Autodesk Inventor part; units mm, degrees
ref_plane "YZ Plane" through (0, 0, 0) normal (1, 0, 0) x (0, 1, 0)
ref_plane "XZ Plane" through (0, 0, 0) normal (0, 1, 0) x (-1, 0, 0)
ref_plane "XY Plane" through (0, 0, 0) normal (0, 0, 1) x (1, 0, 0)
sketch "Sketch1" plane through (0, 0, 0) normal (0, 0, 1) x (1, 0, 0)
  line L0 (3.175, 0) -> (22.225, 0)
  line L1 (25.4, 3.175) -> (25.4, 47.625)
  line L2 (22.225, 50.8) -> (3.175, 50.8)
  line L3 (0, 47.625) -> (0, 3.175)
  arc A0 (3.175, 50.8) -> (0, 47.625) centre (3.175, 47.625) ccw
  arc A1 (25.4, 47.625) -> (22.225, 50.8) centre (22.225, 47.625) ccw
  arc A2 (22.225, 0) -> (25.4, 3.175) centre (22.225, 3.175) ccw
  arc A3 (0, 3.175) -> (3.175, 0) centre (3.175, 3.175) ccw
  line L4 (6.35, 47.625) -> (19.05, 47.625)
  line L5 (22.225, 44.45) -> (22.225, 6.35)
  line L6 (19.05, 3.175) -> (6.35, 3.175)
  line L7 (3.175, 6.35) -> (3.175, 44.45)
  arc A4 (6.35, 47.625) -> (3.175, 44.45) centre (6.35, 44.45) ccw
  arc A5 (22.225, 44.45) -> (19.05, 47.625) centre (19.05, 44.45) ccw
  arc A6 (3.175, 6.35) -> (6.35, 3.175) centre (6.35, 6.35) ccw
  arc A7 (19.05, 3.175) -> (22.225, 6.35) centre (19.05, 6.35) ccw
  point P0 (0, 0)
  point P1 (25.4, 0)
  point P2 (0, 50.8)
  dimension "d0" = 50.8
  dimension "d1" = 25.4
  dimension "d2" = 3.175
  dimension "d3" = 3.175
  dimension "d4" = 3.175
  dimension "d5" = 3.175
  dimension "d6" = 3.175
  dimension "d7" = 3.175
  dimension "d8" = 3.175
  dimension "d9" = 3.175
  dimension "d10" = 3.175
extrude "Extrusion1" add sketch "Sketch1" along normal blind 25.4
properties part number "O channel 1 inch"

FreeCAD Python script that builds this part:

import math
import FreeCAD as App
import Part
import Sketcher

V = App.Vector
Q = App.Units.Quantity

doc = App.newDocument("Part")
body = doc.addObject("PartDesign::Body", "Body")

# Sketch on XY plane
sketch1 = body.newObject("Sketcher::SketchObject", "Sketch")
sketch1.AttachmentSupport = (doc.getObject("XY_Plane"), [""])
sketch1.MapMode = "FlatFace"
sketch1.addGeometry([
    Part.ArcOfCircle(Part.Circle(V(3.175, 3.175, 0), V(0, 0, 1), 3.175), math.radians(180), math.radians(270)),  # 0
    Part.LineSegment(V(3.175, 0, 0), V(22.225, 0, 0)),  # 1
    Part.ArcOfCircle(Part.Circle(V(22.225, 3.175, 0), V(0, 0, 1), 3.175), math.radians(-90), math.radians(0)),  # 2
    Part.LineSegment(V(25.4, 3.175, 0), V(25.4, 47.625, 0)),  # 3
    Part.ArcOfCircle(Part.Circle(V(22.225, 47.625, 0), V(0, 0, 1), 3.175), math.radians(0), math.radians(90)),  # 4
    Part.LineSegment(V(22.225, 50.8, 0), V(3.175, 50.8, 0)),  # 5
    Part.ArcOfCircle(Part.Circle(V(3.175, 47.625, 0), V(0, 0, 1), 3.175), math.radians(90), math.radians(180)),  # 6
    Part.LineSegment(V(0, 47.625, 0), V(0, 3.175, 0)),  # 7
    Part.ArcOfCircle(Part.Circle(V(6.35, 44.45, 0), V(0, 0, 1), 3.175), math.radians(90), math.radians(180)),  # 8
    Part.LineSegment(V(6.35, 47.625, 0), V(19.05, 47.625, 0)),  # 9
    Part.ArcOfCircle(Part.Circle(V(19.05, 44.45, 0), V(0, 0, 1), 3.175), math.radians(0), math.radians(90)),  # 10
    Part.LineSegment(V(22.225, 44.45, 0), V(22.225, 6.35, 0)),  # 11
    Part.ArcOfCircle(Part.Circle(V(19.05, 6.35, 0), V(0, 0, 1), 3.175), math.radians(-90), math.radians(0)),  # 12
    Part.LineSegment(V(19.05, 3.175, 0), V(6.35, 3.175, 0)),  # 13
    Part.ArcOfCircle(Part.Circle(V(6.35, 6.35, 0), V(0, 0, 1), 3.175), math.radians(180), math.radians(270)),  # 14
    Part.LineSegment(V(3.175, 6.35, 0), V(3.175, 44.45, 0)),  # 15
], False)
sketch1.addConstraint([
    Sketcher.Constraint("Tangent", 0, 2, 1, 1),
    Sketcher.Constraint("Tangent", 1, 2, 2, 1),
    Sketcher.Constraint("Tangent", 2, 2, 3, 1),
    Sketcher.Constraint("Tangent", 3, 2, 4, 1),
    Sketcher.Constraint("Tangent", 4, 2, 5, 1),
    Sketcher.Constraint("Tangent", 5, 2, 6, 1),
    Sketcher.Constraint("Tangent", 6, 2, 7, 1),
    Sketcher.Constraint("Tangent", 7, 2, 0, 1),
    Sketcher.Constraint("Tangent", 8, 1, 9, 1),
    Sketcher.Constraint("Tangent", 9, 2, 10, 2),
    Sketcher.Constraint("Tangent", 10, 1, 11, 1),
    Sketcher.Constraint("Tangent", 11, 2, 12, 2),
    Sketcher.Constraint("Tangent", 12, 1, 13, 1),
    Sketcher.Constraint("Tangent", 13, 2, 14, 2),
    Sketcher.Constraint("Tangent", 14, 1, 15, 1),
    Sketcher.Constraint("Tangent", 15, 2, 8, 2),
    Sketcher.Constraint("Horizontal", 1),
    Sketcher.Constraint("Vertical", 3),
    Sketcher.Constraint("Horizontal", 5),
    Sketcher.Constraint("Vertical", 7),
    Sketcher.Constraint("Horizontal", 9),
    Sketcher.Constraint("Vertical", 11),
    Sketcher.Constraint("Horizontal", 13),
    Sketcher.Constraint("Vertical", 15),
    Sketcher.Constraint("Equal", 0, 2),
    Sketcher.Constraint("Equal", 2, 4),
    Sketcher.Constraint("Equal", 4, 6),
    Sketcher.Constraint("Equal", 6, 8),
    Sketcher.Constraint("Equal", 8, 10),
    Sketcher.Constraint("Equal", 10, 12),
    Sketcher.Constraint("Equal", 12, 14),
    Sketcher.Constraint("PointOnObject", 0, 2, -1),
    Sketcher.Constraint("PointOnObject", 6, 2, -2),
    Sketcher.Constraint("Horizontal", 6, 2, 8, 1),
    Sketcher.Constraint("Horizontal", 7, 2, 12, 1),
    Sketcher.Constraint("Vertical", 4, 2, 10, 1),
    Sketcher.Constraint("Vertical", 5, 2, 14, 1),
    Sketcher.Constraint("DistanceX", -1, 1, 2, 2, Q("1 in")),
    Sketcher.Constraint("DistanceY", -1, 1, 4, 2, Q("2 in")),
    Sketcher.Constraint("Radius", 0, Q("0.125 in")),
])
pad1 = body.newObject("PartDesign::Pad", "Pad")
pad1.Profile = sketch1
pad1.Length = Q("1 in")

doc.recompute()
